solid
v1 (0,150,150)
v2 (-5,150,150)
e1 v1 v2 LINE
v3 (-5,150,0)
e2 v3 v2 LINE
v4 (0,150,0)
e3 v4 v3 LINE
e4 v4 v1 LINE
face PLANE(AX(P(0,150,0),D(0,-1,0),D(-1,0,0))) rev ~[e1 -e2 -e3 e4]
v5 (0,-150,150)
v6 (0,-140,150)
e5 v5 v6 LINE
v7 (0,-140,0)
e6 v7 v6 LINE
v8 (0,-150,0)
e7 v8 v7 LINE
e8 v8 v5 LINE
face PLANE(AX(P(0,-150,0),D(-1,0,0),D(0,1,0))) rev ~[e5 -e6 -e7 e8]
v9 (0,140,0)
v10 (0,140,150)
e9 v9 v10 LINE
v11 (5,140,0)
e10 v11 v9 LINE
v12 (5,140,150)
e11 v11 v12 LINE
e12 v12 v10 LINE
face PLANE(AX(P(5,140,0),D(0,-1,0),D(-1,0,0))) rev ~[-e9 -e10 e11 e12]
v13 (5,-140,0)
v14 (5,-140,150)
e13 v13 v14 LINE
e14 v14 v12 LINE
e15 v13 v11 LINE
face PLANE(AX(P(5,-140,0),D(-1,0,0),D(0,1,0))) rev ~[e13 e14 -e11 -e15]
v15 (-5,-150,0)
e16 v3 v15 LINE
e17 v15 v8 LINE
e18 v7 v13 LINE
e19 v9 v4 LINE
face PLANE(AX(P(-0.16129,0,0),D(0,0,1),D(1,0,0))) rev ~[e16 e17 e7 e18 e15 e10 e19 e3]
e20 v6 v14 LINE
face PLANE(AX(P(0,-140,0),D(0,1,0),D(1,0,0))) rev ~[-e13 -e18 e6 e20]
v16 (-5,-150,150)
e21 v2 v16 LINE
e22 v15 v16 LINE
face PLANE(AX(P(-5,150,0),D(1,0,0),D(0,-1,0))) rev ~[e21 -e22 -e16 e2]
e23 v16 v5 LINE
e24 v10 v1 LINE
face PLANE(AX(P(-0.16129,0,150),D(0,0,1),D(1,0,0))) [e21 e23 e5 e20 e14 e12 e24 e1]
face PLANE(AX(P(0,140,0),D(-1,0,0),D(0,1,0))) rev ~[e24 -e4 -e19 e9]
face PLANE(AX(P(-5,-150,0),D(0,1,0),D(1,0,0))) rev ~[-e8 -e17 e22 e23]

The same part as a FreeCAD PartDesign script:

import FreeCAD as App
import Part
import Sketcher

V = App.Vector
Q = App.Units.Quantity

doc = App.newDocument("Part")
body = doc.addObject("PartDesign::Body", "Body")

sketch1 = doc.addObject("Sketcher::SketchObject", "Sketch")
body.addObject(sketch1)
sketch1.AttachmentSupport = (doc.XY_Plane, [""])
sketch1.MapMode = "FlatFace"
sketch1.addGeometry([
    Part.LineSegment(V(0, 75, 0), V(-6, 75, 0)),
    Part.LineSegment(V(-6, 75, 0), V(-6, -75, 0)),
    Part.LineSegment(V(-6, -75, 0), V(0, -75, 0)),
    Part.LineSegment(V(0, -75, 0), V(0, -63, 0)),
    Part.LineSegment(V(0, -63, 0), V(6, -63, 0)),
    Part.LineSegment(V(6, -63, 0), V(6, 63, 0)),
    Part.LineSegment(V(6, 63, 0), V(0, 63, 0)),
    Part.LineSegment(V(0, 63, 0), V(0, 75, 0)),
], False)
sketch1.addConstraint([
    Sketcher.Constraint("Coincident", 0, 2, 1, 1),
    Sketcher.Constraint("Coincident", 1, 2, 2, 1),
    Sketcher.Constraint("Coincident", 2, 2, 3, 1),
    Sketcher.Constraint("Coincident", 3, 2, 4, 1),
    Sketcher.Constraint("Coincident", 4, 2, 5, 1),
    Sketcher.Constraint("Coincident", 5, 2, 6, 1),
    Sketcher.Constraint("Coincident", 6, 2, 7, 1),
    Sketcher.Constraint("Coincident", 7, 2, 0, 1),
    Sketcher.Constraint("Horizontal", 0),
    Sketcher.Constraint("Vertical", 1),
    Sketcher.Constraint("Horizontal", 2),
    Sketcher.Constraint("Vertical", 3),
    Sketcher.Constraint("Horizontal", 4),
    Sketcher.Constraint("Vertical", 5),
    Sketcher.Constraint("Horizontal", 6),
    Sketcher.Constraint("Vertical", 7),
    Sketcher.Constraint("Symmetric", 3, 2, 6, 2, -1, 1),
    Sketcher.Constraint("Symmetric", 2, 2, 7, 2, -1),
    Sketcher.Constraint("Equal", 2, 4),
    Sketcher.Constraint("DistanceX", 0, 2, 0, 1, Q("6 mm")),
    Sketcher.Constraint("DistanceY", 1, 2, 1, 1, Q("150 mm")),
    Sketcher.Constraint("DistanceY", 3, 1, 3, 2, Q("12 mm")),
])
pad1 = doc.addObject("PartDesign::Pad", "Pad")
body.addObject(pad1)
pad1.Profile = sketch1
pad1.Length = 150
body2 = doc.addObject("PartDesign::Body", "Body001")

sketch2 = doc.addObject("Sketcher::SketchObject", "Sketch001")
body2.addObject(sketch2)
sketch2.AttachmentSupport = (doc.getObject("XY_Plane001"), [""])
sketch2.MapMode = "FlatFace"
sketch2.addGeometry([
    Part.LineSegment(V(0, 140, 0), V(0, 150, 0)),
    Part.LineSegment(V(0, 150, 0), V(-5, 150, 0)),
    Part.LineSegment(V(-5, 150, 0), V(-5, -150, 0)),
    Part.LineSegment(V(-5, -150, 0), V(0, -150, 0)),
    Part.LineSegment(V(0, -150, 0), V(0, -140, 0)),
    Part.LineSegment(V(0, -140, 0), V(5, -140, 0)),
    Part.LineSegment(V(5, -140, 0), V(5, 140, 0)),
    Part.LineSegment(V(5, 140, 0), V(0, 140, 0)),
], False)
sketch2.addConstraint([
    Sketcher.Constraint("Coincident", 0, 2, 1, 1),
    Sketcher.Constraint("Coincident", 1, 2, 2, 1),
    Sketcher.Constraint("Coincident", 2, 2, 3, 1),
    Sketcher.Constraint("Coincident", 3, 2, 4, 1),
    Sketcher.Constraint("Coincident", 4, 2, 5, 1),
    Sketcher.Constraint("Coincident", 5, 2, 6, 1),
    Sketcher.Constraint("Coincident", 6, 2, 7, 1),
    Sketcher.Constraint("Coincident", 7, 2, 0, 1),
    Sketcher.Constraint("Vertical", 0),
    Sketcher.Constraint("Horizontal", 1),
    Sketcher.Constraint("Vertical", 2),
    Sketcher.Constraint("Horizontal", 3),
    Sketcher.Constraint("Vertical", 4),
    Sketcher.Constraint("Horizontal", 5),
    Sketcher.Constraint("Vertical", 6),
    Sketcher.Constraint("Horizontal", 7),
    Sketcher.Constraint("Symmetric", 0, 2, 3, 2, -1, 1),
    Sketcher.Constraint("Symmetric", 4, 2, 7, 2, -1),
    Sketcher.Constraint("Equal", 3, 5),
    Sketcher.Constraint("DistanceX", 1, 2, 1, 1, Q("5 mm")),
    Sketcher.Constraint("DistanceY", 0, 1, 0, 2, Q("10 mm")),
    Sketcher.Constraint("DistanceY", 2, 2, 2, 1, Q("300 mm")),
])
pad2 = doc.addObject("PartDesign::Pad", "Pad001")
body2.addObject(pad2)
pad2.Profile = sketch2
pad2.Length = 150
body.Visibility = False

doc.recompute()
